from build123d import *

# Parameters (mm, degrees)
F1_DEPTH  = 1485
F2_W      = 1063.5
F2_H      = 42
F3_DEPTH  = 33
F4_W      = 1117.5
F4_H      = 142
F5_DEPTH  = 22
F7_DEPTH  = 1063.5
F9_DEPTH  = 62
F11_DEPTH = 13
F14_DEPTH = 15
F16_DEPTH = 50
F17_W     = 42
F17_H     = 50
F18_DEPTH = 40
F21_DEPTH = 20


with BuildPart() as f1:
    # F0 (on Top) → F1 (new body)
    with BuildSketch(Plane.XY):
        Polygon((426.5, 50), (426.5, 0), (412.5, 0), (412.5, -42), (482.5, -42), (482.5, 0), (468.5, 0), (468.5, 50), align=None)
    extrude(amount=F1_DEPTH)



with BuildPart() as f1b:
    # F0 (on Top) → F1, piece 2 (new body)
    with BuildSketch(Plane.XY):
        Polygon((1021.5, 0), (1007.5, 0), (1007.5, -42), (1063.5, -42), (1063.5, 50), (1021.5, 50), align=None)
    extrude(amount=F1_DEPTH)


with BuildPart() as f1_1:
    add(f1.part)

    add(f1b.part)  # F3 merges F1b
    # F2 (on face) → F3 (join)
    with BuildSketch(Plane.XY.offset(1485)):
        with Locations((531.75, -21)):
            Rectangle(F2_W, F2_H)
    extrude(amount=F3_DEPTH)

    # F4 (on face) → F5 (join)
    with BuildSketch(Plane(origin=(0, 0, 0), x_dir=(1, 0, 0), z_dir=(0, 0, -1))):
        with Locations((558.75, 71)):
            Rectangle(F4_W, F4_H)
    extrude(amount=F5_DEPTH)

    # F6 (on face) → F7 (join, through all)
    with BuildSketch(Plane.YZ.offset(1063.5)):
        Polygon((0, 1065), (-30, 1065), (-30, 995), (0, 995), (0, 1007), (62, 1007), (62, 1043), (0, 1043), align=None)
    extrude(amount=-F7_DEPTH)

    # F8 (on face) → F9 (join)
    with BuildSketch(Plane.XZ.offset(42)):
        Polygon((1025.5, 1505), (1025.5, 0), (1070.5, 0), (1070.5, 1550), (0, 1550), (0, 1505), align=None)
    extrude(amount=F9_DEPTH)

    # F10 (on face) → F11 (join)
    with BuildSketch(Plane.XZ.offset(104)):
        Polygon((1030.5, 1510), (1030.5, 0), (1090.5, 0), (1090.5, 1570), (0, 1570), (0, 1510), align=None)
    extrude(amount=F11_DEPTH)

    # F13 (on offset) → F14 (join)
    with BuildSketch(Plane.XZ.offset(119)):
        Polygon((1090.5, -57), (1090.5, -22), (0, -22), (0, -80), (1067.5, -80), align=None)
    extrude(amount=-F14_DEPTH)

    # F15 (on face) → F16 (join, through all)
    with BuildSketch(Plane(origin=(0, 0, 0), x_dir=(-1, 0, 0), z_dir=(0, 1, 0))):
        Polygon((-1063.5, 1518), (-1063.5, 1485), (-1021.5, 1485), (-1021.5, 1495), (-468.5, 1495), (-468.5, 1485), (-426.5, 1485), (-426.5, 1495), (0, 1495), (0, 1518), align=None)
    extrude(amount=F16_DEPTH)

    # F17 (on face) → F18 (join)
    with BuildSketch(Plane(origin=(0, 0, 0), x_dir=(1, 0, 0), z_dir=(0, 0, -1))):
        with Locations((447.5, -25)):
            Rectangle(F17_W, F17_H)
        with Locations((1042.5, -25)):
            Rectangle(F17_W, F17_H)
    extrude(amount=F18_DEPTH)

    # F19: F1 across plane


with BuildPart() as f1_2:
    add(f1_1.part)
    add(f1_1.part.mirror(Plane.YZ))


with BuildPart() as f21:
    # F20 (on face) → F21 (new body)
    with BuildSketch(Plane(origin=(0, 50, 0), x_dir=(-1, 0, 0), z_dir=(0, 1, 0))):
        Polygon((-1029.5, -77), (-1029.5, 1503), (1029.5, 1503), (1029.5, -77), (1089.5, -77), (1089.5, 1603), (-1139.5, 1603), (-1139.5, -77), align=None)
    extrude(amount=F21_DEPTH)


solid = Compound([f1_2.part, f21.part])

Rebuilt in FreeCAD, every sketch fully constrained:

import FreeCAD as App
import Part
import Sketcher

V = App.Vector
Q = App.Units.Quantity


def add_polygon(sketch, points):
    """Adds a closed chain of lines whose ends are joined by coincident constraints."""
    first, n = sketch.GeometryCount, len(points)
    for a, b in zip(points, points[1:] + points[:1]):
        sketch.addGeometry(Part.LineSegment(App.Vector(*a, 0), App.Vector(*b, 0)), False)
    for i in range(n):
        sketch.addConstraint(Sketcher.Constraint("Coincident", first + i, 2, first + (i + 1) % n, 1))

doc = App.newDocument("Part")
body = doc.addObject("PartDesign::Body", "Body")

# Sketch on XY plane
sketch1 = body.newObject("Sketcher::SketchObject", "Sketch")
sketch1.AttachmentSupport = (doc.getObject("XY_Plane"), [""])
sketch1.MapMode = "FlatFace"
add_polygon(sketch1, [(426.5, 50), (426.5, 0), (412.5, 0), (412.5, -42), (482.5, -42), (482.5, 0), (468.5, 0), (468.5, 50)])  # lines 0-7
sketch1.addConstraint([
    Sketcher.Constraint("Vertical", 0),
    Sketcher.Constraint("Horizontal", 1),
    Sketcher.Constraint("Vertical", 2),
    Sketcher.Constraint("Horizontal", 3),
    Sketcher.Constraint("Vertical", 4),
    Sketcher.Constraint("Horizontal", 5),
    Sketcher.Constraint("Vertical", 6),
    Sketcher.Constraint("Horizontal", 7),
    Sketcher.Constraint("PointOnObject", 0, 2, -1),
    Sketcher.Constraint("PointOnObject", 4, 2, -1),
    Sketcher.Constraint("Equal", 1, 5),
    Sketcher.Constraint("Equal", 7, 2),
    Sketcher.Constraint("DistanceX", 1, 2, 1, 1, 14.0),
    Sketcher.Constraint("DistanceX", 3, 1, 3, 2, 70.0),
    Sketcher.Constraint("DistanceY", 0, 2, 0, 1, 50.0),
    Sketcher.Constraint("DistanceX", -1, 1, 0, 2, 426.5),
])
pad1 = body.newObject("PartDesign::Pad", "Pad")
pad1.Profile = sketch1
pad1.Length = 1485
body2 = doc.addObject("PartDesign::Body", "Body001")

# Sketch on XY plane
sketch2 = body2.newObject("Sketcher::SketchObject", "Sketch001")
sketch2.AttachmentSupport = (doc.getObject("XY_Plane001"), [""])
sketch2.MapMode = "FlatFace"
add_polygon(sketch2, [(1021.5, 0), (1007.5, 0), (1007.5, -42), (1063.5, -42), (1063.5, 50), (1021.5, 50)])  # lines 0-5
sketch2.addConstraint([
    Sketcher.Constraint("Horizontal", 0),
    Sketcher.Constraint("Vertical", 1),
    Sketcher.Constraint("Horizontal", 2),
    Sketcher.Constraint("Vertical", 3),
    Sketcher.Constraint("Horizontal", 4),
    Sketcher.Constraint("Vertical", 5),
    Sketcher.Constraint("PointOnObject", 0, 2, -1),
    Sketcher.Constraint("Equal", 4, 1),
    Sketcher.Constraint("DistanceX", 0, 2, 0, 1, 14.0),
    Sketcher.Constraint("DistanceX", 2, 1, 2, 2, 56.0),
    Sketcher.Constraint("DistanceY", 3, 1, 3, 2, 92.0),
    Sketcher.Constraint("DistanceX", -1, 1, 0, 2, 1007.5),
])
pad2 = body2.newObject("PartDesign::Pad", "Pad001")
pad2.Profile = sketch2
pad2.Length = 1485
body.AllowCompound = True
doc.recompute()

boolean = body.newObject("PartDesign::Boolean", "Boolean")
boolean.Type = "Fuse"
boolean.addObjects([body2])

# Sketch on XY plane
sketch3 = body.newObject("Sketcher::SketchObject", "Sketch002")
sketch3.AttachmentSupport = (doc.getObject("XY_Plane"), [""])
sketch3.MapMode = "FlatFace"
sketch3.AttachmentOffset = App.Placement(V(0, 0, 1485), App.Rotation())
add_polygon(sketch3, [(0, 0), (0, -42), (1063.5, -42), (1063.5, 0)])  # lines 0-3
sketch3.addConstraint([
    Sketcher.Constraint("Vertical", 0),
    Sketcher.Constraint("Horizontal", 1),
    Sketcher.Constraint("Vertical", 2),
    Sketcher.Constraint("Horizontal", 3),
    Sketcher.Constraint("Coincident", 3, 2, -1, 1),
    Sketcher.Constraint("DistanceY", 0, 2, 0, 1, 42.0),
    Sketcher.Constraint("DistanceX", 1, 1, 1, 2, 1063.5),
])
pad3 = body.newObject("PartDesign::Pad", "Pad002")
pad3.Profile = sketch3
pad3.Length = 33

# Sketch on XY plane
sketch4 = body.newObject("Sketcher::SketchObject", "Sketch003")
sketch4.AttachmentSupport = (doc.getObject("XY_Plane"), [""])
sketch4.MapMode = "FlatFace"
add_polygon(sketch4, [(0, -142), (0, 0), (1117.5, 0), (1117.5, -142)])  # lines 0-3
sketch4.addConstraint([
    Sketcher.Constraint("Vertical", 0),
    Sketcher.Constraint("Horizontal", 1),
    Sketcher.Constraint("Vertical", 2),
    Sketcher.Constraint("Horizontal", 3),
    Sketcher.Constraint("Coincident", 0, 2, -1, 1),
    Sketcher.Constraint("DistanceY", 0, 1, 0, 2, 142.0),
    Sketcher.Constraint("DistanceX", 1, 1, 1, 2, 1117.5),
])
pad4 = body.newObject("PartDesign::Pad", "Pad003")
pad4.Profile = sketch4
pad4.Length = 22
pad4.Reversed = True

# Sketch on YZ plane
sketch5 = body.newObject("Sketcher::SketchObject", "Sketch004")
sketch5.AttachmentSupport = (doc.getObject("YZ_Plane"), [""])
sketch5.MapMode = "FlatFace"
sketch5.AttachmentOffset = App.Placement(V(0, 0, 1063.5), App.Rotation())
add_polygon(sketch5, [(0, 1065), (-30, 1065), (-30, 995), (0, 995), (0, 1007), (62, 1007), (62, 1043), (0, 1043)])  # lines 0-7
sketch5.addConstraint([
    Sketcher.Constraint("Horizontal", 0),
    Sketcher.Constraint("Vertical", 1),
    Sketcher.Constraint("Horizontal", 2),
    Sketcher.Constraint("Vertical", 3),
    Sketcher.Constraint("Horizontal", 4),
    Sketcher.Constraint("Vertical", 5),
    Sketcher.Constraint("Horizontal", 6),
    Sketcher.Constraint("Vertical", 7),
    Sketcher.Constraint("PointOnObject", 2, 2, -2),
    Sketcher.Constraint("PointOnObject", 6, 2, -2),
    Sketcher.Constraint("DistanceX", 0, 2, 0, 1, 30.0),
    Sketcher.Constraint("DistanceX", 4, 1, 4, 2, 62.0),
    Sketcher.Constraint("DistanceY", 1, 2, 1, 1, 70.0),
    Sketcher.Constraint("DistanceY", 3, 1, 3, 2, 12.0),
    Sketcher.Constraint("DistanceY", 5, 1, 5, 2, 36.0),
    Sketcher.Constraint("DistanceY", -1, 1, 0, 2, 1065.0),
])
pad5 = body.newObject("PartDesign::Pad", "Pad004")
pad5.Profile = sketch5
pad5.Length = 1063.5
pad5.Reversed = True

# Sketch on XZ plane
sketch6 = body.newObject("Sketcher::SketchObject", "Sketch005")
sketch6.AttachmentSupport = (doc.getObject("XZ_Plane"), [""])
sketch6.MapMode = "FlatFace"
sketch6.AttachmentOffset = App.Placement(V(0, 0, 42), App.Rotation())
add_polygon(sketch6, [(1025.5, 1505), (1025.5, 0), (1070.5, 0), (1070.5, 1550), (0, 1550), (0, 1505)])  # lines 0-5
sketch6.addConstraint([
    Sketcher.Constraint("Vertical", 0),
    Sketcher.Constraint("Horizontal", 1),
    Sketcher.Constraint("Vertical", 2),
    Sketcher.Constraint("Horizontal", 3),
    Sketcher.Constraint("Vertical", 4),
    Sketcher.Constraint("Horizontal", 5),
    Sketcher.Constraint("PointOnObject", 0, 2, -1),
    Sketcher.Constraint("PointOnObject", 3, 2, -2),
    Sketcher.Constraint("Equal", 1, 4),
    Sketcher.Constraint("DistanceX", 1, 1, 1, 2, 45.0),
    Sketcher.Constraint("DistanceY", 0, 2, 0, 1, 1505.0),
    Sketcher.Constraint("DistanceX", 3, 2, 3, 1, 1070.5),
])
pad6 = body.newObject("PartDesign::Pad", "Pad005")
pad6.Profile = sketch6
pad6.Length = 62

# Sketch on XZ plane
sketch7 = body.newObject("Sketcher::SketchObject", "Sketch006")
sketch7.AttachmentSupport = (doc.getObject("XZ_Plane"), [""])
sketch7.MapMode = "FlatFace"
sketch7.AttachmentOffset = App.Placement(V(0, 0, 104), App.Rotation())
add_polygon(sketch7, [(1030.5, 1510), (1030.5, 0), (1090.5, 0), (1090.5, 1570), (0, 1570), (0, 1510)])  # lines 0-5
sketch7.addConstraint([
    Sketcher.Constraint("Vertical", 0),
    Sketcher.Constraint("Horizontal", 1),
    Sketcher.Constraint("Vertical", 2),
    Sketcher.Constraint("Horizontal", 3),
    Sketcher.Constraint("Vertical", 4),
    Sketcher.Constraint("Horizontal", 5),
    Sketcher.Constraint("PointOnObject", 0, 2, -1),
    Sketcher.Constraint("PointOnObject", 3, 2, -2),
    Sketcher.Constraint("Equal", 1, 4),
    Sketcher.Constraint("DistanceX", 1, 1, 1, 2, 60.0),
    Sketcher.Constraint("DistanceY", 0, 2, 0, 1, 1510.0),
    Sketcher.Constraint("DistanceX", 3, 2, 3, 1, 1090.5),
])
pad7 = body.newObject("PartDesign::Pad", "Pad006")
pad7.Profile = sketch7
pad7.Length = 13

# Sketch on XZ plane
sketch8 = body.newObject("Sketcher::SketchObject", "Sketch007")
sketch8.AttachmentSupport = (doc.getObject("XZ_Plane"), [""])
sketch8.MapMode = "FlatFace"
sketch8.AttachmentOffset = App.Placement(V(0, 0, 119), App.Rotation())
add_polygon(sketch8, [(1090.5, -57), (1090.5, -22), (0, -22), (0, -80), (1067.5, -80)])  # lines 0-4
sketch8.addConstraint([
    Sketcher.Constraint("Vertical", 0),
    Sketcher.Constraint("Horizontal", 1),
    Sketcher.Constraint("Vertical", 2),
    Sketcher.Constraint("Horizontal", 3),
    Sketcher.Constraint("PointOnObject", 1, 2, -2),
    Sketcher.Constraint("DistanceY", 0, 1, 0, 2, 35.0),
    Sketcher.Constraint("DistanceY", 2, 2, 2, 1, 58.0),
    Sketcher.Constraint("Angle", 4, Q("45 deg")),
    Sketcher.Constraint("DistanceX", 1, 2, 1, 1, 1090.5),
    Sketcher.Constraint("DistanceY", 0, 2, -1, 1, 22.0),
])
pad8 = body.newObject("PartDesign::Pad", "Pad007")
pad8.Profile = sketch8
pad8.Length = 15
pad8.Reversed = True

# Sketch on XZ plane
sketch9 = body.newObject("Sketcher::SketchObject", "Sketch008")
sketch9.AttachmentSupport = (doc.getObject("XZ_Plane"), [""])
sketch9.MapMode = "FlatFace"
add_polygon(sketch9, [(1063.5, 1518), (1063.5, 1485), (1021.5, 1485), (1021.5, 1495), (468.5, 1495), (468.5, 1485), (426.5, 1485), (426.5, 1495), (0, 1495), (0, 1518)])  # lines 0-9
sketch9.addConstraint([
    Sketcher.Constraint("Vertical", 0),
    Sketcher.Constraint("Horizontal", 1),
    Sketcher.Constraint("Vertical", 2),
    Sketcher.Constraint("Horizontal", 3),
    Sketcher.Constraint("Vertical", 4),
    Sketcher.Constraint("Horizontal", 5),
    Sketcher.Constraint("Vertical", 6),
    Sketcher.Constraint("Horizontal", 7),
    Sketcher.Constraint("Vertical", 8),
    Sketcher.Constraint("Horizontal", 9),
    Sketcher.Constraint("PointOnObject", 7, 2, -2),
    Sketcher.Constraint("Horizontal", 1, 2, 4, 2),
    Sketcher.Constraint("Horizontal", 3, 2, 6, 2),
    Sketcher.Constraint("Equal", 1, 5),
    Sketcher.Constraint("DistanceX", 1, 2, 1, 1, 42.0),
    Sketcher.Constraint("DistanceX", 3, 2, 3, 1, 553.0),
    Sketcher.Constraint("DistanceY", 0, 2, 0, 1, 33.0),
    Sketcher.Constraint("DistanceY", 2, 1, 2, 2, 10.0),
    Sketcher.Constraint("DistanceX", 7, 2, 7, 1, 426.5),
    Sketcher.Constraint("DistanceY", -1, 1, 0, 2, 1485.0),
])
pad9 = body.newObject("PartDesign::Pad", "Pad008")
pad9.Profile = sketch9
pad9.Length = 50
pad9.Reversed = True

# Sketch on XY plane
sketch10 = body.newObject("Sketcher::SketchObject", "Sketch009")
sketch10.AttachmentSupport = (doc.getObject("XY_Plane"), [""])
sketch10.MapMode = "FlatFace"
add_polygon(sketch10, [(426.5, 0), (426.5, 50), (468.5, 50), (468.5, 0)])  # lines 0-3
add_polygon(sketch10, [(1021.5, 0), (1021.5, 50), (1063.5, 50), (1063.5, 0)])  # lines 4-7
sketch10.addConstraint([
    Sketcher.Constraint("Vertical", 0),
    Sketcher.Constraint("Horizontal", 1),
    Sketcher.Constraint("Vertical", 2),
    Sketcher.Constraint("Horizontal", 3),
    Sketcher.Constraint("Vertical", 4),
    Sketcher.Constraint("Horizontal", 5),
    Sketcher.Constraint("Vertical", 6),
    Sketcher.Constraint("Horizontal", 7),
    Sketcher.Constraint("PointOnObject", 2, 2, -1),
    Sketcher.Constraint("PointOnObject", 6, 2, -1),
    Sketcher.Constraint("Horizontal", 1, 2, 4, 2),
    Sketcher.Constraint("Equal", 3, 5),
    Sketcher.Constraint("DistanceX", 1, 1, 1, 2, 42.0),
    Sketcher.Constraint("DistanceY", 0, 1, 0, 2, 50.0),
    Sketcher.Constraint("DistanceX", 1, 2, 4, 2, 553.0),
    Sketcher.Constraint("DistanceX", -1, 1, 0, 2, 426.5),
])
pad10 = body.newObject("PartDesign::Pad", "Pad009")
pad10.Profile = sketch10
pad10.Length = 40
pad10.Reversed = True
body3 = doc.addObject("PartDesign::Body", "Body002")
doc.recompute()

body3.BaseFeature = body
doc.recompute()

mirroring = doc.addObject("Part::Mirroring", "Mirroring")
mirroring.Source = body
mirroring.Base = V(0, 0, 0)
mirroring.Normal = V(1, 0, 0)
body4 = doc.addObject("PartDesign::Body", "Body003")
body4.BaseFeature = mirroring
boolean2 = body3.newObject("PartDesign::Boolean", "Boolean001")
boolean2.Type = "Fuse"
boolean2.addObjects([body4])
doc.recompute()
body5 = doc.addObject("PartDesign::Body", "Body004")

# Sketch on XZ plane
sketch11 = body5.newObject("Sketcher::SketchObject", "Sketch010")
sketch11.AttachmentSupport = (doc.getObject("XZ_Plane004"), [""])
sketch11.MapMode = "FlatFace"
sketch11.AttachmentOffset = App.Placement(V(0, 0, -50), App.Rotation())
add_polygon(sketch11, [(1029.5, -77), (1029.5, 1503), (-1029.5, 1503), (-1029.5, -77), (-1089.5, -77), (-1089.5, 1603), (1139.5, 1603), (1139.5, -77)])  # lines 0-7
sketch11.addConstraint([
    Sketcher.Constraint("Vertical", 0),
    Sketcher.Constraint("Horizontal", 1),
    Sketcher.Constraint("Vertical", 2),
    Sketcher.Constraint("Horizontal", 3),
    Sketcher.Constraint("Vertical", 4),
    Sketcher.Constraint("Horizontal", 5),
    Sketcher.Constraint("Vertical", 6),
    Sketcher.Constraint("Horizontal", 7),
    Sketcher.Constraint("Symmetric", 2, 2, 7, 2, -2),
    Sketcher.Constraint("DistanceX", 1, 2, 1, 1, 2059.0),
    Sketcher.Constraint("DistanceX", 3, 2, 3, 1, 60.0),
    Sketcher.Constraint("DistanceX", 5, 1, 5, 2, 2229.0),
    Sketcher.Constraint("DistanceY", 0, 1, 0, 2, 1580.0),
    Sketcher.Constraint("DistanceY", 4, 1, 4, 2, 1680.0),
    Sketcher.Constraint("DistanceY", -1, 1, 0, 2, 1503.0),
])
pad11 = body5.newObject("PartDesign::Pad", "Pad010")
pad11.Profile = sketch11
pad11.Length = 20
pad11.Reversed = True
mirroring.Visibility = False

doc.recompute()
